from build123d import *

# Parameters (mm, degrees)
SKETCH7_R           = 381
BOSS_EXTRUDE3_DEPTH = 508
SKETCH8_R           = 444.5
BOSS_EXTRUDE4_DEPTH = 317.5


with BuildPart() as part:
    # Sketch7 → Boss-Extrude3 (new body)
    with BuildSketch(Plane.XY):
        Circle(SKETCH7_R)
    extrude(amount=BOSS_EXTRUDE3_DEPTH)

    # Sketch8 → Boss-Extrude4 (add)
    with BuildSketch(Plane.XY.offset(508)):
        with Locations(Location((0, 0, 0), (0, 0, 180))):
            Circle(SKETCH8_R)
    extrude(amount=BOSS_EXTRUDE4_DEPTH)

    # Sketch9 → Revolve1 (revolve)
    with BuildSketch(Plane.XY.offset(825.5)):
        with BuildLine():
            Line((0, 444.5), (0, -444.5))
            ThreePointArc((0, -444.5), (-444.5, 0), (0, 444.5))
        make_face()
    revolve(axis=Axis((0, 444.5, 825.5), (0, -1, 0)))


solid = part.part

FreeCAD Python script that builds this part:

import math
import FreeCAD as App
import Part
import Sketcher

V = App.Vector
Q = App.Units.Quantity

doc = App.newDocument("Part")
body = doc.addObject("PartDesign::Body", "Body")

# Sketch on XY plane
sketch1 = body.newObject("Sketcher::SketchObject", "Sketch")
sketch1.AttachmentSupport = (doc.getObject("XY_Plane"), [""])
sketch1.MapMode = "FlatFace"
sketch1.addGeometry(Part.Circle(V(0, 0, 0), V(0, 0, 1), 381), False)
sketch1.addConstraint([
    Sketcher.Constraint("Coincident", 0, 3, -1, 1),
    Sketcher.Constraint("Diameter", 0, Q("30 in")),
])
pad1 = body.newObject("PartDesign::Pad", "Pad")
pad1.Profile = sketch1
pad1.Length = Q("20 in")

# Sketch on XY plane
sketch2 = body.newObject("Sketcher::SketchObject", "Sketch001")
sketch2.AttachmentSupport = (doc.getObject("XY_Plane"), [""])
sketch2.MapMode = "FlatFace"
sketch2.AttachmentOffset = App.Placement(V(0, 0, 20 * 25.4), App.Rotation())
sketch2.addGeometry(Part.Circle(V(0, 0, 0), V(0, 0, 1), 444), False)
sketch2.addConstraint([
    Sketcher.Constraint("Coincident", 0, 3, -1, 1),
    Sketcher.Constraint("Diameter", 0, Q("35 in")),
])
pad2 = body.newObject("PartDesign::Pad", "Pad001")
pad2.Profile = sketch2
pad2.Length = Q("12.5 in")

# Sketch on XY plane
sketch3 = body.newObject("Sketcher::SketchObject", "Sketch002")
sketch3.AttachmentSupport = (doc.getObject("XY_Plane"), [""])
sketch3.MapMode = "FlatFace"
sketch3.AttachmentOffset = App.Placement(V(0, 0, 32.5 * 25.4), App.Rotation())
sketch3.addGeometry([
    Part.LineSegment(V(0, -444, 0), V(0, 444, 0)),
    Part.ArcOfCircle(Part.Circle(V(0, 0, 0), V(0, 0, 1), 444), math.radians(90), math.radians(270)),
], False)
sketch3.addConstraint([
    Sketcher.Constraint("Coincident", 0, 1, 1, 2),
    Sketcher.Constraint("Coincident", 1, 1, 0, 2),
    Sketcher.Constraint("Vertical", 0),
    Sketcher.Constraint("Coincident", 1, 3, -1, 1),
    Sketcher.Constraint("PointOnObject", 0, 1, -2),
    Sketcher.Constraint("Radius", 1, Q("17.5 in")),
])
revolution = body.newObject("PartDesign::Revolution", "Revolution")
revolution.Profile = sketch3
revolution.ReferenceAxis = (sketch3, ["V_Axis"])
revolution.Angle = 360

doc.recompute()
